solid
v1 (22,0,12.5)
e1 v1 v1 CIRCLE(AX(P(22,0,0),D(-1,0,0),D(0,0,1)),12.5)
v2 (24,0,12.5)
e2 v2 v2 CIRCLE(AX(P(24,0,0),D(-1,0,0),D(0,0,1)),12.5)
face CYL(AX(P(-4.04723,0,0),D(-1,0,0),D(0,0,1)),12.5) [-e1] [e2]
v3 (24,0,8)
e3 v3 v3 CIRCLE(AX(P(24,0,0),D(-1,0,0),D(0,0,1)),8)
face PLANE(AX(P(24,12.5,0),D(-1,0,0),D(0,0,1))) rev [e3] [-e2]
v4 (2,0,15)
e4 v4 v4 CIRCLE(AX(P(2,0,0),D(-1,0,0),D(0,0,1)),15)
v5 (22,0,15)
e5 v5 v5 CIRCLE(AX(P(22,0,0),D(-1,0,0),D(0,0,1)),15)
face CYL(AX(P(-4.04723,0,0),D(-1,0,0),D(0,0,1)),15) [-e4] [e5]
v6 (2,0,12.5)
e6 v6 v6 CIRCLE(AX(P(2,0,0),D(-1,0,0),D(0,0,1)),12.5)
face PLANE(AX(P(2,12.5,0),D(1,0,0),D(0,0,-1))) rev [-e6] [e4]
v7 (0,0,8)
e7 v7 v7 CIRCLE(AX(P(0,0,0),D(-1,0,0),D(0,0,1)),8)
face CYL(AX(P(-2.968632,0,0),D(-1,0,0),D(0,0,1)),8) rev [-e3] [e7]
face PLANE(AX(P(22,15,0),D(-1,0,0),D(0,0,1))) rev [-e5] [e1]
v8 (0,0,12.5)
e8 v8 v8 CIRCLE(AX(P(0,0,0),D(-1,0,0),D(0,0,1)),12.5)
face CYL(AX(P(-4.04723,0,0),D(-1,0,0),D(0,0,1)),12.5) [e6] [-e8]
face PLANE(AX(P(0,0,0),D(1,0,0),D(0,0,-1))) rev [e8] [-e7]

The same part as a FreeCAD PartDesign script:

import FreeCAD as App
import Part
import Sketcher
from FreeCAD import Vector
Q = App.Units.Quantity


def add_polygon(sketch, points):
    """Adds a closed chain of lines whose ends are joined by coincident constraints."""
    first, n = sketch.GeometryCount, len(points)
    for a, b in zip(points, points[1:] + points[:1]):
        sketch.addGeometry(Part.LineSegment(App.Vector(*a, 0), App.Vector(*b, 0)), False)
    for i in range(n):
        sketch.addConstraint(Sketcher.Constraint("Coincident", first + i, 2, first + (i + 1) % n, 1))

doc = App.newDocument("Part")
params = doc.addObject("Spreadsheet::Sheet", "Params")
for row, (alias, value) in enumerate([
    ("sketch1_width", "24 mm"),
    ("sketch1_width2", "2 mm"),
    ("sketch1_height", "12.5 mm"),
    ("sketch1_height2", "2.5 mm"),
    ("revolution_angle", "360 deg"),
    ("sketch2_width", "24 mm"),
    ("sketch2_height", "8 mm"),
    ("groove_angle", "360 deg"),
], start=1):
    params.set(f"A{row}", alias)
    params.set(f"B{row}", "=" + value)
    params.setAlias(f"B{row}", alias)

body = doc.addObject("PartDesign::Body", "Body")

sketch1 = body.newObject("Sketcher::SketchObject", "Sketch")
sketch1.AttachmentSupport = (doc.getObject("XY_Plane"), [""])
sketch1.MapMode = "FlatFace"
add_polygon(sketch1, [(0, 12.5), (0, 0), (24, 0), (24, 12.5), (22, 12.5), (22, 15), (2, 15), (2, 12.5)])
sketch1.addConstraint([
    Sketcher.Constraint("Vertical", 0),
    Sketcher.Constraint("Horizontal", 1),
    Sketcher.Constraint("Vertical", 2),
    Sketcher.Constraint("Horizontal", 3),
    Sketcher.Constraint("Vertical", 4),
    Sketcher.Constraint("Horizontal", 5),
    Sketcher.Constraint("Vertical", 6),
    Sketcher.Constraint("Horizontal", 7),
    Sketcher.Constraint("Coincident", 0, 2, -1, 1),
    Sketcher.Constraint("Horizontal", 3, 2, 6, 2),
    Sketcher.Constraint("Equal", 3, 7),
    Sketcher.Constraint("DistanceX", 1, 1, 1, 2, Q("24 mm")),
    Sketcher.Constraint("DistanceX", 3, 2, 3, 1, Q("2 mm")),
    Sketcher.Constraint("DistanceY", 0, 2, 0, 1, Q("12.5 mm")),
    Sketcher.Constraint("DistanceY", 4, 1, 4, 2, Q("2.5 mm")),
])
sketch1.setExpression("Constraints[19]", "Params.sketch1_width")
sketch1.setExpression("Constraints[20]", "Params.sketch1_width2")
sketch1.setExpression("Constraints[21]", "Params.sketch1_height")
sketch1.setExpression("Constraints[22]", "Params.sketch1_height2")
revolution = body.newObject("PartDesign::Revolution", "Revolution")
revolution.Profile = sketch1
revolution.ReferenceAxis = (sketch1, ["H_Axis"])
revolution.setExpression("Angle", "Params.revolution_angle")

sketch2 = body.newObject("Sketcher::SketchObject", "Sketch001")
sketch2.AttachmentSupport = (doc.getObject("XY_Plane"), [""])
sketch2.MapMode = "FlatFace"
add_polygon(sketch2, [(0, 8), (0, 0), (24, 0), (24, 8)])
sketch2.addConstraint([
    Sketcher.Constraint("Vertical", 0),
    Sketcher.Constraint("Horizontal", 1),
    Sketcher.Constraint("Vertical", 2),
    Sketcher.Constraint("Horizontal", 3),
    Sketcher.Constraint("Coincident", 0, 2, -1, 1),
    Sketcher.Constraint("DistanceX", 1, 1, 1, 2, Q("24 mm")),
    Sketcher.Constraint("DistanceY", 0, 2, 0, 1, Q("8 mm")),
])
sketch2.setExpression("Constraints[9]", "Params.sketch2_width")
sketch2.setExpression("Constraints[10]", "Params.sketch2_height")
groove = body.newObject("PartDesign::Groove", "Groove")
groove.Profile = sketch2
groove.ReferenceAxis = (sketch2, ["H_Axis"])
groove.setExpression("Angle", "Params.groove_angle")

doc.recompute()
